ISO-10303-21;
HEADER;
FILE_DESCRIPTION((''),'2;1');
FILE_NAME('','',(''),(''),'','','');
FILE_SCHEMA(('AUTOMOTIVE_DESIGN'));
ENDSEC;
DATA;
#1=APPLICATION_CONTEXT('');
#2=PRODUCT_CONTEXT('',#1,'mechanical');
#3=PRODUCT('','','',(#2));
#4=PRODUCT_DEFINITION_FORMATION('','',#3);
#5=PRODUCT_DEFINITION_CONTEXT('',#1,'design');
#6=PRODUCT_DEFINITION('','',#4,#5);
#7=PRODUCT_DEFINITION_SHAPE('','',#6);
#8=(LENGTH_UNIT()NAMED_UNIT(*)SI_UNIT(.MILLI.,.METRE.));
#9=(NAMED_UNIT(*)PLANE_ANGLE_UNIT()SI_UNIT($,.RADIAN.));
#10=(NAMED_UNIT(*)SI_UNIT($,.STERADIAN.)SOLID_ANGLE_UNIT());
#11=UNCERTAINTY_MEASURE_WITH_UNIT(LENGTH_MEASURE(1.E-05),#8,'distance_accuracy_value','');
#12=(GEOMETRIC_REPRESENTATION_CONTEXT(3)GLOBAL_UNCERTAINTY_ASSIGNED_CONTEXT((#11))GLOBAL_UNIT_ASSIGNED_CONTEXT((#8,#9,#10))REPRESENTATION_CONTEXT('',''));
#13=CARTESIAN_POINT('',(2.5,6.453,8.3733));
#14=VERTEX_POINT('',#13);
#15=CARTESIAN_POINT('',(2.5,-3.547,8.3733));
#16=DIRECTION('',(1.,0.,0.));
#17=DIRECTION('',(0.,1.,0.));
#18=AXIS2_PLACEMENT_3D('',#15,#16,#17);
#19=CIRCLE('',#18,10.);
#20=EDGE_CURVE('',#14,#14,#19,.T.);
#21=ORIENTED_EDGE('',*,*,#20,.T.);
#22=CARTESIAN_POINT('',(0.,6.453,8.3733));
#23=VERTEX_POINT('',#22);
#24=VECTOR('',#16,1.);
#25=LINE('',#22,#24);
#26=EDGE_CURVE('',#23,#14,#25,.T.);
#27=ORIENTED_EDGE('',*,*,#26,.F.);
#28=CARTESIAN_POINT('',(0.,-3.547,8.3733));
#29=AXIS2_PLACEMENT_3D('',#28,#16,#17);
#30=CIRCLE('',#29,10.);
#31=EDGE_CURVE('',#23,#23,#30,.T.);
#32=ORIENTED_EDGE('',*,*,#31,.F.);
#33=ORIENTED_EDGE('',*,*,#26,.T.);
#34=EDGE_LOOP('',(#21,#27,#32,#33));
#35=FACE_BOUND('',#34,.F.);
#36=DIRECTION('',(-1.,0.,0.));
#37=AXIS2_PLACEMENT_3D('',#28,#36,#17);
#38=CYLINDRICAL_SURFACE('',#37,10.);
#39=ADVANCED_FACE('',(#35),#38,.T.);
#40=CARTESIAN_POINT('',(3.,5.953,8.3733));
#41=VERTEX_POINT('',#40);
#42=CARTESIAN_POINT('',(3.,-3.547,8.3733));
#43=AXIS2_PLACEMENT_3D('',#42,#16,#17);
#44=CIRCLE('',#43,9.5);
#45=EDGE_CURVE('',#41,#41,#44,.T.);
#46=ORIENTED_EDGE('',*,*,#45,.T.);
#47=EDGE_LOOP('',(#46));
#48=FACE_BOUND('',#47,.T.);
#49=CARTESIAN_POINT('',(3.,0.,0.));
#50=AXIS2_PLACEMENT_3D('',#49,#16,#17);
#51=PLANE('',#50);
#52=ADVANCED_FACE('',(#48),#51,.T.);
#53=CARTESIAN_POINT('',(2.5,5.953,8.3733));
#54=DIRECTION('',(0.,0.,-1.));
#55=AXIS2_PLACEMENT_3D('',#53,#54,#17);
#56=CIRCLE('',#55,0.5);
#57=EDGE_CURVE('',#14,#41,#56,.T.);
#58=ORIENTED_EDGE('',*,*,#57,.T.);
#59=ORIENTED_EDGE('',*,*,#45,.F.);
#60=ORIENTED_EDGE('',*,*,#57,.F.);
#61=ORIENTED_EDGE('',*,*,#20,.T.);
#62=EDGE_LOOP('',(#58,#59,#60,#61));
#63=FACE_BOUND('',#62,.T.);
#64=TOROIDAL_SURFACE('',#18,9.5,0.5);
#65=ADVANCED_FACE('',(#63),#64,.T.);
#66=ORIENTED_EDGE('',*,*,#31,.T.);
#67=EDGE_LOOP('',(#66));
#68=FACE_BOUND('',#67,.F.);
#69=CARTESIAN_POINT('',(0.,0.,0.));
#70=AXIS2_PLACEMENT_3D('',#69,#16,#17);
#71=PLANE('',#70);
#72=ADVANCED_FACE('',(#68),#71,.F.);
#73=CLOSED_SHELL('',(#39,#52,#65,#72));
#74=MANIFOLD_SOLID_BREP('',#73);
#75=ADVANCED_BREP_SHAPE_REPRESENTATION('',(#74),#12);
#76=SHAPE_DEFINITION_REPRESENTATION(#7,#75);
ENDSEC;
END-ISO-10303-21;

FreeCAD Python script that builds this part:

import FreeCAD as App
import Part
import Sketcher

V = App.Vector


def edges_at(feature, points):
    """Names of the edges that pass closest to the given points."""
    edges = feature.Shape.Edges
    near = lambda p: min(range(len(edges)), key=lambda i: edges[i].distToShape(Part.Vertex(*p))[0])
    return sorted({f"Edge{near(p) + 1}" for p in points})

doc = App.newDocument("Part")
body = doc.addObject("PartDesign::Body", "Body")

# Sketch on YZ plane
sketch1 = body.newObject("Sketcher::SketchObject", "Sketch")
sketch1.AttachmentSupport = (doc.getObject("YZ_Plane"), [""])
sketch1.MapMode = "FlatFace"
sketch1.addGeometry(Part.Circle(V(-4, 8, 0), V(0, 0, 1), 10), False)
sketch1.addConstraint(Sketcher.Constraint("Diameter", 0, 20.0))
sketch1.addConstraint(Sketcher.Constraint("DistanceX", 0, 3, -1, 1, 3.547))
sketch1.addConstraint(Sketcher.Constraint("DistanceY", -1, 1, 0, 3, 8.3733))
pad1 = body.newObject("PartDesign::Pad", "Pad")
pad1.Profile = sketch1
pad1.Length = 3
doc.recompute()

fillet = body.newObject("PartDesign::Fillet", "Fillet")
fillet.Base = (pad1, edges_at(pad1, [(3, -13.547, 8.373)]))
fillet.Radius = 0.5

doc.recompute()
